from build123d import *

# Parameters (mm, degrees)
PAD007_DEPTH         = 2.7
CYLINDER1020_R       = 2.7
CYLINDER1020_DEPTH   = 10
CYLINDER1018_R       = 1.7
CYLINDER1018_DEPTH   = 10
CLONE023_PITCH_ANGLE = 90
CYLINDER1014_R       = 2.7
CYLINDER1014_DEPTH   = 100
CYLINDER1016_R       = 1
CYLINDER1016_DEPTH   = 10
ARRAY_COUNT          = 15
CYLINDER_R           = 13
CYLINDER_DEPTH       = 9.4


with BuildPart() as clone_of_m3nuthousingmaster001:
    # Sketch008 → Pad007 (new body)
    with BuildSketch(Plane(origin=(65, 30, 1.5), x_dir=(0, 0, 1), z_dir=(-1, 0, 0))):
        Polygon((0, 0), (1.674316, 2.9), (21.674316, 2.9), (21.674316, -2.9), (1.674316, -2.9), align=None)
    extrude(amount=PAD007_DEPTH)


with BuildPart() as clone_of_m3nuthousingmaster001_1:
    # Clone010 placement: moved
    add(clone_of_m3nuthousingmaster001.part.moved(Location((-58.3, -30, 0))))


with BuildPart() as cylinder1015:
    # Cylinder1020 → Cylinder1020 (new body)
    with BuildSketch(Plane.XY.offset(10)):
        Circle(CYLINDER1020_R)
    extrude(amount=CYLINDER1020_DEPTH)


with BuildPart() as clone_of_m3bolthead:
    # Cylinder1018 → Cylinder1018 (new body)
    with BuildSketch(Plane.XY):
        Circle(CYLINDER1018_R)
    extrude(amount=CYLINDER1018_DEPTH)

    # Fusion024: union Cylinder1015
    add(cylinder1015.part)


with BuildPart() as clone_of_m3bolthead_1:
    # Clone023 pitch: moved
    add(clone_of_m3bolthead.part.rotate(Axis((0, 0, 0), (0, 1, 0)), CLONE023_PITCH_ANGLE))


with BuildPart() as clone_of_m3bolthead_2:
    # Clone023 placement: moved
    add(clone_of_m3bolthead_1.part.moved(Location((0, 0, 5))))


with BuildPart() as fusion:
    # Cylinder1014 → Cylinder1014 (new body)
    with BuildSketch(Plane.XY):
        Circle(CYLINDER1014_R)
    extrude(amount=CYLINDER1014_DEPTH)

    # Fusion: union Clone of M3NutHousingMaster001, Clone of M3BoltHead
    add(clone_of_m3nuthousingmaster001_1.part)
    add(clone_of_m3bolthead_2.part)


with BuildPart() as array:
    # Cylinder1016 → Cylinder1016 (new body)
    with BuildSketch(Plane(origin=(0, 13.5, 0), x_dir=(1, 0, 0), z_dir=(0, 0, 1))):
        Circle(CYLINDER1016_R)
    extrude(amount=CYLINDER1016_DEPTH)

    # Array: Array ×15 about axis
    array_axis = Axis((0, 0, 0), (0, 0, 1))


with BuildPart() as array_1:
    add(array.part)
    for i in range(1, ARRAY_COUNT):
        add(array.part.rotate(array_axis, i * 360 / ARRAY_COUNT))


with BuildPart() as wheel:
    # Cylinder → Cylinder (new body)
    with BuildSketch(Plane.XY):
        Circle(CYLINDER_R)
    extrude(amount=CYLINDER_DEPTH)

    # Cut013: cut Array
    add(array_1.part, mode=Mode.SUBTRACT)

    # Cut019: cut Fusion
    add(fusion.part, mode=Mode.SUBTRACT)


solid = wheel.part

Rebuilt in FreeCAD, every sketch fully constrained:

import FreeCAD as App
import Part
import Sketcher

V = App.Vector
Q = App.Units.Quantity

doc = App.newDocument("Part")
body = doc.addObject("PartDesign::Body", "Body")

sketch1 = body.newObject("Sketcher::SketchObject", "Sketch")
sketch1.AttachmentSupport = (doc.getObject("YZ_Plane"), [""])
sketch1.MapMode = "FlatFace"
sketch1.AttachmentOffset = App.Placement(V(0, 0, 65), App.Rotation())
sketch1.addGeometry([
    Part.LineSegment(V(32.9, 3.174316, 0), V(30, 1.5, 0)),
    Part.LineSegment(V(30, 1.5, 0), V(27.1, 3.174316, 0)),
    Part.LineSegment(V(27.1, 3.174316, 0), V(27.1, 23.174316, 0)),
    Part.LineSegment(V(27.1, 23.174316, 0), V(32.9, 23.174316, 0)),
    Part.LineSegment(V(32.9, 23.174316, 0), V(32.9, 3.174316, 0)),
], False)
sketch1.addConstraint([
    Sketcher.Constraint("Coincident", 0, 2, 1, 1),
    Sketcher.Constraint("Coincident", 1, 2, 2, 1),
    Sketcher.Constraint("Coincident", 2, 2, 3, 1),
    Sketcher.Constraint("Coincident", 3, 2, 4, 1),
    Sketcher.Constraint("Coincident", 4, 2, 0, 1),
    Sketcher.Constraint("Vertical", 2),
    Sketcher.Constraint("Horizontal", 3),
    Sketcher.Constraint("Vertical", 4),
    Sketcher.Constraint("Horizontal", 1, 2, 4, 2),
    Sketcher.Constraint("Equal", 0, 1),
    Sketcher.Constraint("DistanceY", 2, 1, 2, 2, 20.0),
    Sketcher.Constraint("Angle", 0, Q("-149.999997 deg")),
    Sketcher.Constraint("DistanceX", 3, 1, 3, 2, 5.8),
    Sketcher.Constraint("DistanceX", -1, 1, 0, 2, 30.0),
    Sketcher.Constraint("DistanceY", -1, 1, 0, 2, 1.5),
])
pad1 = body.newObject("PartDesign::Pad", "Pad")
pad1.Profile = sketch1
pad1.Length = 2.7
pad1.Reversed = True
body2 = doc.addObject("PartDesign::Body", "Body001")
doc.recompute()

body.Placement = App.Placement(V(-58.3, -30, 0), App.Rotation(V(0, 0, 1), 0))
boolean = body2.newObject("PartDesign::Boolean", "Boolean")
boolean.Type = "Fuse"
boolean.addObjects([body])
body3 = doc.addObject("PartDesign::Body", "Body002")

sketch2 = body3.newObject("Sketcher::SketchObject", "Sketch001")
sketch2.AttachmentSupport = (doc.getObject("XY_Plane002"), [""])
sketch2.MapMode = "FlatFace"
sketch2.AttachmentOffset = App.Placement(V(0, 0, 10), App.Rotation())
sketch2.addGeometry(Part.Circle(V(0, 0, 0), V(0, 0, 1), 2.7), False)
sketch2.addConstraint([
    Sketcher.Constraint("Coincident", 0, 3, -1, 1),
    Sketcher.Constraint("Diameter", 0, 5.4),
])
pad2 = body3.newObject("PartDesign::Pad", "Pad001")
pad2.Profile = sketch2
pad2.Length = 10
body4 = doc.addObject("PartDesign::Body", "Body003")

sketch3 = body4.newObject("Sketcher::SketchObject", "Sketch002")
sketch3.AttachmentSupport = (doc.getObject("XY_Plane003"), [""])
sketch3.MapMode = "FlatFace"
sketch3.addGeometry(Part.Circle(V(0, 0, 0), V(0, 0, 1), 1.7), False)
sketch3.addConstraint([
    Sketcher.Constraint("Coincident", 0, 3, -1, 1),
    Sketcher.Constraint("Diameter", 0, 3.4),
])
pad3 = body4.newObject("PartDesign::Pad", "Pad002")
pad3.Profile = sketch3
pad3.Length = 10
doc.recompute()

boolean2 = body4.newObject("PartDesign::Boolean", "Boolean001")
boolean2.Type = "Fuse"
boolean2.addObjects([body3])
body5 = doc.addObject("PartDesign::Body", "Body004")
doc.recompute()

body4.Placement = App.Placement(V(0, 0, 0), App.Rotation(V(0, 1, 0), 90))
boolean3 = body5.newObject("PartDesign::Boolean", "Boolean002")
boolean3.Type = "Fuse"
boolean3.addObjects([body4])
body6 = doc.addObject("PartDesign::Body", "Body005")
doc.recompute()

body5.Placement = App.Placement(V(0, 0, 5), App.Rotation(V(0, 0, 1), 0))
boolean4 = body6.newObject("PartDesign::Boolean", "Boolean003")
boolean4.Type = "Fuse"
boolean4.addObjects([body5])
body7 = doc.addObject("PartDesign::Body", "Body006")
body7.AllowCompound = True

sketch4 = body7.newObject("Sketcher::SketchObject", "Sketch003")
sketch4.AttachmentSupport = (doc.getObject("XY_Plane006"), [""])
sketch4.MapMode = "FlatFace"
sketch4.addGeometry(Part.Circle(V(0, 0, 0), V(0, 0, 1), 2.7), False)
sketch4.addConstraint([
    Sketcher.Constraint("Coincident", 0, 3, -1, 1),
    Sketcher.Constraint("Diameter", 0, 5.4),
])
pad4 = body7.newObject("PartDesign::Pad", "Pad003")
pad4.Profile = sketch4
pad4.Length = 100
doc.recompute()

boolean5 = body7.newObject("PartDesign::Boolean", "Boolean004")
boolean5.Type = "Fuse"
boolean5.addObjects([body2])
doc.recompute()

boolean6 = body7.newObject("PartDesign::Boolean", "Boolean005")
boolean6.Type = "Fuse"
boolean6.addObjects([body6])
body8 = doc.addObject("PartDesign::Body", "Body007")

sketch5 = body8.newObject("Sketcher::SketchObject", "Sketch004")
sketch5.AttachmentSupport = (doc.getObject("XY_Plane007"), [""])
sketch5.MapMode = "FlatFace"
sketch5.addGeometry(Part.Circle(V(0, 13.5, 0), V(0, 0, 1), 1), False)
sketch5.addConstraint([
    Sketcher.Constraint("PointOnObject", 0, 3, -2),
    Sketcher.Constraint("Diameter", 0, 2.0),
    Sketcher.Constraint("DistanceY", -1, 1, 0, 3, 13.5),
])
pad5 = body8.newObject("PartDesign::Pad", "Pad004")
pad5.Profile = sketch5
pad5.Length = 10
body9 = doc.addObject("PartDesign::Body", "Body008")
body9.AllowCompound = True
doc.recompute()

body9.BaseFeature = body8
doc.recompute()

body10 = doc.addObject("PartDesign::Body", "Body009")
body10.BaseFeature = body8
body10.Placement = App.Placement(V(0, 0, 0), App.Rotation(V(0, 0, 1), 24))
boolean7 = body9.newObject("PartDesign::Boolean", "Boolean006")
boolean7.Type = "Fuse"
boolean7.addObjects([body10])
doc.recompute()

body11 = doc.addObject("PartDesign::Body", "Body010")
body11.BaseFeature = body8
body11.Placement = App.Placement(V(0, 0, 0), App.Rotation(V(0, 0, 1), 48))
boolean8 = body9.newObject("PartDesign::Boolean", "Boolean007")
boolean8.Type = "Fuse"
boolean8.addObjects([body11])
doc.recompute()

body12 = doc.addObject("PartDesign::Body", "Body011")
body12.BaseFeature = body8
body12.Placement = App.Placement(V(0, 0, 0), App.Rotation(V(0, 0, 1), 72))
boolean9 = body9.newObject("PartDesign::Boolean", "Boolean008")
boolean9.Type = "Fuse"
boolean9.addObjects([body12])
doc.recompute()

body13 = doc.addObject("PartDesign::Body", "Body012")
body13.BaseFeature = body8
body13.Placement = App.Placement(V(0, 0, 0), App.Rotation(V(0, 0, 1), 96))
boolean10 = body9.newObject("PartDesign::Boolean", "Boolean009")
boolean10.Type = "Fuse"
boolean10.addObjects([body13])
doc.recompute()

body14 = doc.addObject("PartDesign::Body", "Body013")
body14.BaseFeature = body8
body14.Placement = App.Placement(V(0, 0, 0), App.Rotation(V(0, 0, 1), 120))
boolean11 = body9.newObject("PartDesign::Boolean", "Boolean010")
boolean11.Type = "Fuse"
boolean11.addObjects([body14])
doc.recompute()

body15 = doc.addObject("PartDesign::Body", "Body014")
body15.BaseFeature = body8
body15.Placement = App.Placement(V(0, 0, 0), App.Rotation(V(0, 0, 1), 144))
boolean12 = body9.newObject("PartDesign::Boolean", "Boolean011")
boolean12.Type = "Fuse"
boolean12.addObjects([body15])
doc.recompute()

body16 = doc.addObject("PartDesign::Body", "Body015")
body16.BaseFeature = body8
body16.Placement = App.Placement(V(0, 0, 0), App.Rotation(V(0, 0, 1), 168))
boolean13 = body9.newObject("PartDesign::Boolean", "Boolean012")
boolean13.Type = "Fuse"
boolean13.addObjects([body16])
doc.recompute()

body17 = doc.addObject("PartDesign::Body", "Body016")
body17.BaseFeature = body8
body17.Placement = App.Placement(V(0, 0, 0), App.Rotation(V(0, 0, 1), 192))
boolean14 = body9.newObject("PartDesign::Boolean", "Boolean013")
boolean14.Type = "Fuse"
boolean14.addObjects([body17])
doc.recompute()

body18 = doc.addObject("PartDesign::Body", "Body017")
body18.BaseFeature = body8
body18.Placement = App.Placement(V(0, 0, 0), App.Rotation(V(0, 0, 1), 216))
boolean15 = body9.newObject("PartDesign::Boolean", "Boolean014")
boolean15.Type = "Fuse"
boolean15.addObjects([body18])
doc.recompute()

body19 = doc.addObject("PartDesign::Body", "Body018")
body19.BaseFeature = body8
body19.Placement = App.Placement(V(0, 0, 0), App.Rotation(V(0, 0, 1), 240))
boolean16 = body9.newObject("PartDesign::Boolean", "Boolean015")
boolean16.Type = "Fuse"
boolean16.addObjects([body19])
doc.recompute()

body20 = doc.addObject("PartDesign::Body", "Body019")
body20.BaseFeature = body8
body20.Placement = App.Placement(V(0, 0, 0), App.Rotation(V(0, 0, 1), 264))
boolean17 = body9.newObject("PartDesign::Boolean", "Boolean016")
boolean17.Type = "Fuse"
boolean17.addObjects([body20])
doc.recompute()

body21 = doc.addObject("PartDesign::Body", "Body020")
body21.BaseFeature = body8
body21.Placement = App.Placement(V(0, 0, 0), App.Rotation(V(0, 0, 1), 288))
boolean18 = body9.newObject("PartDesign::Boolean", "Boolean017")
boolean18.Type = "Fuse"
boolean18.addObjects([body21])
doc.recompute()

body22 = doc.addObject("PartDesign::Body", "Body021")
body22.BaseFeature = body8
body22.Placement = App.Placement(V(0, 0, 0), App.Rotation(V(0, 0, 1), 312))
boolean19 = body9.newObject("PartDesign::Boolean", "Boolean018")
boolean19.Type = "Fuse"
boolean19.addObjects([body22])
doc.recompute()

body8.Placement = App.Placement(V(0, 0, 0), App.Rotation(V(0, 0, 1), 336))
boolean20 = body9.newObject("PartDesign::Boolean", "Boolean019")
boolean20.Type = "Fuse"
boolean20.addObjects([body8])
body23 = doc.addObject("PartDesign::Body", "Body022")

sketch6 = body23.newObject("Sketcher::SketchObject", "Sketch005")
sketch6.AttachmentSupport = (doc.getObject("XY_Plane022"), [""])
sketch6.MapMode = "FlatFace"
sketch6.addGeometry(Part.Circle(V(0, 0, 0), V(0, 0, 1), 13), False)
sketch6.addConstraint([
    Sketcher.Constraint("Coincident", 0, 3, -1, 1),
    Sketcher.Constraint("Diameter", 0, 26.0),
])
pad6 = body23.newObject("PartDesign::Pad", "Pad005")
pad6.Profile = sketch6
pad6.Length = 9.4
doc.recompute()

boolean21 = body23.newObject("PartDesign::Boolean", "Boolean020")
boolean21.Type = "Cut"
boolean21.addObjects([body9])
doc.recompute()

boolean22 = body23.newObject("PartDesign::Boolean", "Boolean021")
boolean22.Type = "Cut"
boolean22.addObjects([body7])

doc.recompute()
